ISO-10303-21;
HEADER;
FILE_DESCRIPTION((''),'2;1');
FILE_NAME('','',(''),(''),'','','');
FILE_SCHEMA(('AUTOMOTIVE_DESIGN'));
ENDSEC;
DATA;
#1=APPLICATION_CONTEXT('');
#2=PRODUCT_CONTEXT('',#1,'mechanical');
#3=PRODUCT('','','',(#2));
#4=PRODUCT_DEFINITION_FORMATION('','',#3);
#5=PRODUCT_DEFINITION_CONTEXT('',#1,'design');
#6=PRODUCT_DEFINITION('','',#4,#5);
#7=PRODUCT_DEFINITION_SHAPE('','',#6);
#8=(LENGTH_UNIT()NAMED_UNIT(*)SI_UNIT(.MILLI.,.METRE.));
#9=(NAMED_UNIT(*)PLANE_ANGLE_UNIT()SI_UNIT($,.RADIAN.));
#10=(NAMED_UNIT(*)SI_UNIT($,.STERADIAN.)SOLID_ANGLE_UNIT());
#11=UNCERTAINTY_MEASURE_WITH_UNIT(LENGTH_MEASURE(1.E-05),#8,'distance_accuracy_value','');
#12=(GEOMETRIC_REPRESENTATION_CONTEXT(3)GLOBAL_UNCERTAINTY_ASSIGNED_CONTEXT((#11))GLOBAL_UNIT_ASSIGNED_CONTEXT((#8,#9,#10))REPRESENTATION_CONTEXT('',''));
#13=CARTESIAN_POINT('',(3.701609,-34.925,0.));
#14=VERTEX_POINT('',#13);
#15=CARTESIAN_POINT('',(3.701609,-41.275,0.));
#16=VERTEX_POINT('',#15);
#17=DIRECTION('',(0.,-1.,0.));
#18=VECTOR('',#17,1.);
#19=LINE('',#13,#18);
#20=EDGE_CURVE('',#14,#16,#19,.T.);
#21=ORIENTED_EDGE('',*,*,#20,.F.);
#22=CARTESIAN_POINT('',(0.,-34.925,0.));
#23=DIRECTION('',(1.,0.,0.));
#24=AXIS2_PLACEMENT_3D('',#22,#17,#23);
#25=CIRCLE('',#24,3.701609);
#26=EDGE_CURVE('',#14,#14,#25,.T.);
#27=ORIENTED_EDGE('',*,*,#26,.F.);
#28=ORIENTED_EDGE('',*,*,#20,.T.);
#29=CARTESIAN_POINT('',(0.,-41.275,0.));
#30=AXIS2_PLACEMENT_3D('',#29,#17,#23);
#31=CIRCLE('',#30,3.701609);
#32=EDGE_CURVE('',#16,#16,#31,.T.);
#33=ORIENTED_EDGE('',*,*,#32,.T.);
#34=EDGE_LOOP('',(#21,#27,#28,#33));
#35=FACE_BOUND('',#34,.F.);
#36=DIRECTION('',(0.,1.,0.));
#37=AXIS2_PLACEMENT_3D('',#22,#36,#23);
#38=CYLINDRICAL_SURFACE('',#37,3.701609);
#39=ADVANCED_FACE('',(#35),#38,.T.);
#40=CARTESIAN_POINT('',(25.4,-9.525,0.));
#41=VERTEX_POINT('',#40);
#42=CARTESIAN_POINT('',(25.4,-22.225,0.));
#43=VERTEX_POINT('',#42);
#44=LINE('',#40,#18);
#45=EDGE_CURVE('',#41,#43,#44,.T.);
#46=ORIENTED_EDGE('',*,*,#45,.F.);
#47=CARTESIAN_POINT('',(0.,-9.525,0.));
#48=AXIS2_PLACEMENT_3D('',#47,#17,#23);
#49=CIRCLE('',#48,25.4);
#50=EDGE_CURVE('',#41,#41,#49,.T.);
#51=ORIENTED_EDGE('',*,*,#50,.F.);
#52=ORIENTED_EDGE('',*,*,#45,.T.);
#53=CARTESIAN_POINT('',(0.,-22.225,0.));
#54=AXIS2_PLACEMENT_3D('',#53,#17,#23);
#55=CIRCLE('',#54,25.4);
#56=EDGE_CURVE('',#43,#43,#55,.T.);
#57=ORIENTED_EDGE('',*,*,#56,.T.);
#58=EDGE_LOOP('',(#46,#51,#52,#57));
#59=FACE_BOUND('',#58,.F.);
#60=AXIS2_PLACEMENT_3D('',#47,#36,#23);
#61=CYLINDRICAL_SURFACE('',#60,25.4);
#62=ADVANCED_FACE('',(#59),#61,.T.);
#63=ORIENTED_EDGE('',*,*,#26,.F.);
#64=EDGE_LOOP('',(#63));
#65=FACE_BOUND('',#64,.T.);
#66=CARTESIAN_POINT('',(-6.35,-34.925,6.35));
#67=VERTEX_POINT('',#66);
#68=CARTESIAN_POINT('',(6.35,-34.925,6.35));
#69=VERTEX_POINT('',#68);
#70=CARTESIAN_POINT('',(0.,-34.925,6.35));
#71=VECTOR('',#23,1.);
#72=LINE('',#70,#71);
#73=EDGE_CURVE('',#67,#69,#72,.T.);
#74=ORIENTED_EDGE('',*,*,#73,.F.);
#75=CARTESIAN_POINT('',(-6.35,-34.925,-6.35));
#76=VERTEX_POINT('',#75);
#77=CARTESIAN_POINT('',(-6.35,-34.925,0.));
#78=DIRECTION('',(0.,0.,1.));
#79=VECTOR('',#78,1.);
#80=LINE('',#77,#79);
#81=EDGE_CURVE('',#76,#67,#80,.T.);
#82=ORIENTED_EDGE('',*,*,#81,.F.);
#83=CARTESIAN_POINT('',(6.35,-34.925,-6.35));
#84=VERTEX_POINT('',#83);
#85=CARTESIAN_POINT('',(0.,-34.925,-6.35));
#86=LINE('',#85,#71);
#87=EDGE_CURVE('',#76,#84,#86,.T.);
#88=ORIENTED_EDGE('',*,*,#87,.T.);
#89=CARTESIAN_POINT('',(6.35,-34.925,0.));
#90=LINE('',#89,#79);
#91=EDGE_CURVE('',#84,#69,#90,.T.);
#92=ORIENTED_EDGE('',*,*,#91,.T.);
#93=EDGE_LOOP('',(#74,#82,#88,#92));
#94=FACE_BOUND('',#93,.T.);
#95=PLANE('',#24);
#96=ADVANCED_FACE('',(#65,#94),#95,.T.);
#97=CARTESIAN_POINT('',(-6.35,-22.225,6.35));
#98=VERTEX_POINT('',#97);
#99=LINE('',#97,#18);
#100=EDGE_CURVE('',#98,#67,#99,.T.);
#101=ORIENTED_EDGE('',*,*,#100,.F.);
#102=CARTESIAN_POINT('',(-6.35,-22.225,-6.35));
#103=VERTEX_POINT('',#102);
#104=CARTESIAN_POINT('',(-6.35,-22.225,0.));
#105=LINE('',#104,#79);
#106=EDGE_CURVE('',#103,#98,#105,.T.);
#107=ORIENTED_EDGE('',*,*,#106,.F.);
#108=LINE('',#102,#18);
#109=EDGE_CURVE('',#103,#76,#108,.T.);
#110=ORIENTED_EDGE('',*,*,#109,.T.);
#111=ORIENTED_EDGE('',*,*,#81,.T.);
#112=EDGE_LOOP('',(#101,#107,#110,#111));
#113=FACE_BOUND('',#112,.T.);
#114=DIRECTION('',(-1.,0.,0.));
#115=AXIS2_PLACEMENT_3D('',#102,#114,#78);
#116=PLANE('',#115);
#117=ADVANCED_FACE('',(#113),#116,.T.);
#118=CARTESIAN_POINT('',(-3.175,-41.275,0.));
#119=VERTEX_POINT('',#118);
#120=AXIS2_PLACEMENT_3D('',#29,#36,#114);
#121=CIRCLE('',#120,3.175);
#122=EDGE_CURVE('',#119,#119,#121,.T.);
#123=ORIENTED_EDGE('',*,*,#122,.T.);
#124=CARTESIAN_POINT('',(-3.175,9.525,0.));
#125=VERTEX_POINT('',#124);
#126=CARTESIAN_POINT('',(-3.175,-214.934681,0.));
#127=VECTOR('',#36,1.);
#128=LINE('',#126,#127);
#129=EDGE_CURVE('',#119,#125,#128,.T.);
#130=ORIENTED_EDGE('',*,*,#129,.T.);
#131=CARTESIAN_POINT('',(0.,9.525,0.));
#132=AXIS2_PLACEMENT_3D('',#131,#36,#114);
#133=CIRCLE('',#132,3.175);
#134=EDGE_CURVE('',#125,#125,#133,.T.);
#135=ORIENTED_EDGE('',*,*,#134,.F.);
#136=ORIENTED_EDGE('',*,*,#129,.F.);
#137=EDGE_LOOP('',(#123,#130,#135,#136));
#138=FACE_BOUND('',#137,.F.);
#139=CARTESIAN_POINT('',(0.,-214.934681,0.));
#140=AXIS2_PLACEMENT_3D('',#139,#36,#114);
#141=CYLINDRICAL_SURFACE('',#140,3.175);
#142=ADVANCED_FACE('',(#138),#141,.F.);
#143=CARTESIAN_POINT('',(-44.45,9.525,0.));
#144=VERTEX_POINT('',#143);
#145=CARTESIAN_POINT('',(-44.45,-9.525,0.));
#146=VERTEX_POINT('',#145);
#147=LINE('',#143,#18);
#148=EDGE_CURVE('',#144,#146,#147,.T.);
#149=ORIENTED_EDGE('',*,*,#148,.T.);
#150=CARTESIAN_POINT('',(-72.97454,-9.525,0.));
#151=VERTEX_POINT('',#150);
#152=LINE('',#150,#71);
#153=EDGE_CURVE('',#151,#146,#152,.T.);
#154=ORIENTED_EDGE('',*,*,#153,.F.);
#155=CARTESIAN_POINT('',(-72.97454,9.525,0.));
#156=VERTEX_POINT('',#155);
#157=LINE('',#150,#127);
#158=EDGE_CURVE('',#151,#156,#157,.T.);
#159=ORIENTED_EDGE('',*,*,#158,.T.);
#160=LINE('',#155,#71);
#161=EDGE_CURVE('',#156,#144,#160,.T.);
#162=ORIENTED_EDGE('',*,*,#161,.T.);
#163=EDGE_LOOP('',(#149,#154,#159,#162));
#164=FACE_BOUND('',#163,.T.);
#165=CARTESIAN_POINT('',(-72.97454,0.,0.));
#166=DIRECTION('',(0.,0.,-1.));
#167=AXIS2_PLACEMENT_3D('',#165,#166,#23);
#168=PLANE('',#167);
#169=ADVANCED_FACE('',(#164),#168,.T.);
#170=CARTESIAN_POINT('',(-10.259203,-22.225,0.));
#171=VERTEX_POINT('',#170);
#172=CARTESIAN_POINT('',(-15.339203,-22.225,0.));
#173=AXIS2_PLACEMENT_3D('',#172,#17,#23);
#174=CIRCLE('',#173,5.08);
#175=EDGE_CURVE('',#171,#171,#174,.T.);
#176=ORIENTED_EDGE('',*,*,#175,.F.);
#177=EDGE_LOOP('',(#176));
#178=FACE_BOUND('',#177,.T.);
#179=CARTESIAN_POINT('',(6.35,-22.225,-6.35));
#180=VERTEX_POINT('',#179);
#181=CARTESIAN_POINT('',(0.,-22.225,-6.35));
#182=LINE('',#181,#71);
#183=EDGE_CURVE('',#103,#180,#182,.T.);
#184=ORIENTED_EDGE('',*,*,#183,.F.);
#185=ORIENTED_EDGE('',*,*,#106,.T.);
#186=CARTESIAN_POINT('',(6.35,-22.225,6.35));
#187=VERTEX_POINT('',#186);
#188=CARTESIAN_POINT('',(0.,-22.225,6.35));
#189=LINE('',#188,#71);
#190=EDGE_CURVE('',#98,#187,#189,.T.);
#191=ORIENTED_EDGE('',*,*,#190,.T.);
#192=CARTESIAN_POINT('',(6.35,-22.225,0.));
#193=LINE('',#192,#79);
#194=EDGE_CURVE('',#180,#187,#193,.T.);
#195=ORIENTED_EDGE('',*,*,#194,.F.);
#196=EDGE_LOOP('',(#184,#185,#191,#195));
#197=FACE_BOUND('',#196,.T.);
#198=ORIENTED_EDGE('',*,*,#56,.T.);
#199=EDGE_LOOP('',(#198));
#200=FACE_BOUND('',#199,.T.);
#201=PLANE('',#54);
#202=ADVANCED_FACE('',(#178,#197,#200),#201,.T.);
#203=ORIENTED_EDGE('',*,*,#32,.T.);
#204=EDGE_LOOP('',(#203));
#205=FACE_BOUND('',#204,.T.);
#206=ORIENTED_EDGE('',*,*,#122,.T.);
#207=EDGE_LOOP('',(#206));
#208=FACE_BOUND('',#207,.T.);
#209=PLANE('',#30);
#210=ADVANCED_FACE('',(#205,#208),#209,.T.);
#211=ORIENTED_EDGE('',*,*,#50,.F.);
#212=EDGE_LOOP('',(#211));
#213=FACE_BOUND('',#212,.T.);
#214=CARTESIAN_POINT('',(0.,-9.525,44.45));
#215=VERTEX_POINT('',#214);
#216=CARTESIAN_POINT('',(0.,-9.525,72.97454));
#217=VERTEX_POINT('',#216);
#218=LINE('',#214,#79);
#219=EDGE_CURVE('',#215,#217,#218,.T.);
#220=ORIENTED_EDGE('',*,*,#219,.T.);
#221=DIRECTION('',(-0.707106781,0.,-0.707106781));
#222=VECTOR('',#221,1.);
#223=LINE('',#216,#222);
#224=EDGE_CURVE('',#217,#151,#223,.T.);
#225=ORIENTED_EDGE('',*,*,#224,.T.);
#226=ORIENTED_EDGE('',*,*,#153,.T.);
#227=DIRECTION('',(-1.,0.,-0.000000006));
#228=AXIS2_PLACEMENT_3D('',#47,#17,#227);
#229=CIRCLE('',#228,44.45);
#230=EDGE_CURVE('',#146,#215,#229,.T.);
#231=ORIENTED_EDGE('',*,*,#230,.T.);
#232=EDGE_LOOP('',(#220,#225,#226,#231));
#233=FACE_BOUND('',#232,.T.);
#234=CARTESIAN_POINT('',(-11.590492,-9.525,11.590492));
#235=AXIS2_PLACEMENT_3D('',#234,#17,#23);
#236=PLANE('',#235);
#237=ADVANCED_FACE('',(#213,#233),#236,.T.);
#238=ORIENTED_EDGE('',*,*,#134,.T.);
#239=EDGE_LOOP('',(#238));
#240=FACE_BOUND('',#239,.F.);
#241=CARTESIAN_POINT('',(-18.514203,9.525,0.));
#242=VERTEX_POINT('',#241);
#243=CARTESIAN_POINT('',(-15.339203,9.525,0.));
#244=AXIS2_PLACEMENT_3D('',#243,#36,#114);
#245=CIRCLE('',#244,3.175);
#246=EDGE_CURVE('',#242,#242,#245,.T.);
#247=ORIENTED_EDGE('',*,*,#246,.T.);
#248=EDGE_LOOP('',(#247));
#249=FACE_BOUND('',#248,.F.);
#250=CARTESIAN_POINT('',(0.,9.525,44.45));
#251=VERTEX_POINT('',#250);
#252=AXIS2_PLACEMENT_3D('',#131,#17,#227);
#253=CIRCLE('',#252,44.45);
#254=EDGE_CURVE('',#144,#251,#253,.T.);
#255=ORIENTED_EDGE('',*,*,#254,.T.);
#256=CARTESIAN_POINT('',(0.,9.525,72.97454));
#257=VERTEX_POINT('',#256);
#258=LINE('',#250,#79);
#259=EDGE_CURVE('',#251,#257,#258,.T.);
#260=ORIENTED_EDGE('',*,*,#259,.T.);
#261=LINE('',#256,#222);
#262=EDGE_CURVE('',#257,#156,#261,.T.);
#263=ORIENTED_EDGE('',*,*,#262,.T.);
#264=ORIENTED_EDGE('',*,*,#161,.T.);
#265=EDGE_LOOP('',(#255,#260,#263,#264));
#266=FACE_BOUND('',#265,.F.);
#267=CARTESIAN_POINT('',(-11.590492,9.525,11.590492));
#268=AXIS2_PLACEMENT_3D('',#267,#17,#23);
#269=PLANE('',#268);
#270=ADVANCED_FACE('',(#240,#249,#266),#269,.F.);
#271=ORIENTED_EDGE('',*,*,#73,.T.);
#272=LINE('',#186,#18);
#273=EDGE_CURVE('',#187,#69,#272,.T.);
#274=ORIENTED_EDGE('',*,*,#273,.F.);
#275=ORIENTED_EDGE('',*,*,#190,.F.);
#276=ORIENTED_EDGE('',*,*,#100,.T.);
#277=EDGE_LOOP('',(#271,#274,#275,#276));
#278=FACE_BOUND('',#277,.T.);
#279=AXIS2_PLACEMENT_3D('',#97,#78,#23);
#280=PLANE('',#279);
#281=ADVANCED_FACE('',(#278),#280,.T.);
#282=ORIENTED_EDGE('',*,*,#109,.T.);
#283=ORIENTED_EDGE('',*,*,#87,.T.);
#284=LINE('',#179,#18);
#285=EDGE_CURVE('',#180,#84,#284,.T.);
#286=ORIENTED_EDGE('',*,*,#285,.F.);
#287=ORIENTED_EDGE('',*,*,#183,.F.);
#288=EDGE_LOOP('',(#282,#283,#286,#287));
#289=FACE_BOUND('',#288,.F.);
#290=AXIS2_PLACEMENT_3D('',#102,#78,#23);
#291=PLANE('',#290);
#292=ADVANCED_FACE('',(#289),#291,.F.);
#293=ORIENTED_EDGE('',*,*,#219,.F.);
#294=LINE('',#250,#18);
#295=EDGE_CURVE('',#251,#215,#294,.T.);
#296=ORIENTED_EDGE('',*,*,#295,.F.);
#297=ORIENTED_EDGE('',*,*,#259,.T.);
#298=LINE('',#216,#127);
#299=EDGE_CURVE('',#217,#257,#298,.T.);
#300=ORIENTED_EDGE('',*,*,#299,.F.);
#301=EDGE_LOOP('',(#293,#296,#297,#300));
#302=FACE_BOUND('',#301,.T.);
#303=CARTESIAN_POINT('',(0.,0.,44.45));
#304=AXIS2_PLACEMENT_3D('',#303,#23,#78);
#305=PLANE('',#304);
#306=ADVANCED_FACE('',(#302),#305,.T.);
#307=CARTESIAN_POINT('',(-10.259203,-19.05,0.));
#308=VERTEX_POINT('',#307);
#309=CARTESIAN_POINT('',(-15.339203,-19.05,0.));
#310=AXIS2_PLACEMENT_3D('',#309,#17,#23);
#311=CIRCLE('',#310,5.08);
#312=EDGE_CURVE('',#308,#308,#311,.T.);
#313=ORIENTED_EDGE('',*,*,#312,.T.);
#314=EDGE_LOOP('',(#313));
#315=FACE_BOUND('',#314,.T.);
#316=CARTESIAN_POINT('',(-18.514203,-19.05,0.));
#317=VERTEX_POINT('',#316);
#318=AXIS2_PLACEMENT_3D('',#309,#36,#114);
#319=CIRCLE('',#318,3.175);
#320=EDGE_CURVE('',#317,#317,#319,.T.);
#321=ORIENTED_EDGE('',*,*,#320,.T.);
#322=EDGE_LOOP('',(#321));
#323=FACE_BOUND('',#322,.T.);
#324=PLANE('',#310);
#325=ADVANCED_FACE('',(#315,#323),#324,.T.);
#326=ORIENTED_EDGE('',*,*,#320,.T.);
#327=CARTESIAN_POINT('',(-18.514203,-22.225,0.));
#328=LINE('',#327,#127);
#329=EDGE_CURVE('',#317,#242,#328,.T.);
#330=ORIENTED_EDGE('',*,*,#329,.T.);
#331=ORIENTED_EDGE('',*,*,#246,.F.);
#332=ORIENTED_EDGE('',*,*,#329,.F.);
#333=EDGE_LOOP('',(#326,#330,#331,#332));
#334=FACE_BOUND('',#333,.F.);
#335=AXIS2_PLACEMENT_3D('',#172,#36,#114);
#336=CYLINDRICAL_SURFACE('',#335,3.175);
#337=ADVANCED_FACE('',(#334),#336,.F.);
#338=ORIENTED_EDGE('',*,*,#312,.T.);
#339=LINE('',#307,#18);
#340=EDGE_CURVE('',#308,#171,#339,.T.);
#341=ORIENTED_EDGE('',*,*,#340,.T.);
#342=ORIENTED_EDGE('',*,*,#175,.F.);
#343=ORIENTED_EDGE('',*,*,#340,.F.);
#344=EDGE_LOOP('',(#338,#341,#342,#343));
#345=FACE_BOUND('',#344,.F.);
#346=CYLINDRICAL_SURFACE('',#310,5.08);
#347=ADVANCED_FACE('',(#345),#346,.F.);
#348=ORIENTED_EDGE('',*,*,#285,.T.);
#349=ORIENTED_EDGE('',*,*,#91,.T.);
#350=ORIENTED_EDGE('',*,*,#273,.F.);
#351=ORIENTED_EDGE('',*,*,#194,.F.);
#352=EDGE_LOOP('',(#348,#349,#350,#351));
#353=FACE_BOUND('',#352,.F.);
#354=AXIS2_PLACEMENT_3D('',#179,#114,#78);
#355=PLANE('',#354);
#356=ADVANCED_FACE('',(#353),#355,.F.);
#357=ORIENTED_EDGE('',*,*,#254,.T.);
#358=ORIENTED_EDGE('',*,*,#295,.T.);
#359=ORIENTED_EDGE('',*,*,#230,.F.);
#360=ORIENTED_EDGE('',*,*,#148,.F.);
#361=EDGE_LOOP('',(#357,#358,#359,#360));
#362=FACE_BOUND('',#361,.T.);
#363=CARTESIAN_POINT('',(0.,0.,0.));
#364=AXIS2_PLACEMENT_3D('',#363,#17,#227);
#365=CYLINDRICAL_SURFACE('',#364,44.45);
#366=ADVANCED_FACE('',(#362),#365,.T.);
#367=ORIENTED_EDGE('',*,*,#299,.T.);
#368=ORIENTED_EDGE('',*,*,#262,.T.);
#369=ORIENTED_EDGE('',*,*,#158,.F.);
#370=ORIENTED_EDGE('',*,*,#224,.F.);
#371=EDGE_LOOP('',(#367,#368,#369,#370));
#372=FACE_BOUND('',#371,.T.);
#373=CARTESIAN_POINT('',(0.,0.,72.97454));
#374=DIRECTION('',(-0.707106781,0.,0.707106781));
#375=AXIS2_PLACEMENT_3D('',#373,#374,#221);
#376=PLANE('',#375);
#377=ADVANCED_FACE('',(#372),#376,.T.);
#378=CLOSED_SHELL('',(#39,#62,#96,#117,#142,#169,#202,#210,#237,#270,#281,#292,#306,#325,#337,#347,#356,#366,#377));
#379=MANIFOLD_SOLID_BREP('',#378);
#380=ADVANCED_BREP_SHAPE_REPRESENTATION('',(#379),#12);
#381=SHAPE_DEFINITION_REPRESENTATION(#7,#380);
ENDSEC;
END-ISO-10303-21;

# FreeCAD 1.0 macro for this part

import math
import FreeCAD as App
import Part
import Sketcher

V = App.Vector
Q = App.Units.Quantity


def add_polygon(sketch, points):
    """Adds a closed chain of lines whose ends are joined by coincident constraints."""
    first, n = sketch.GeometryCount, len(points)
    for a, b in zip(points, points[1:] + points[:1]):
        sketch.addGeometry(Part.LineSegment(App.Vector(*a, 0), App.Vector(*b, 0)), False)
    for i in range(n):
        sketch.addConstraint(Sketcher.Constraint("Coincident", first + i, 2, first + (i + 1) % n, 1))

doc = App.newDocument("Part")
params = doc.addObject("Spreadsheet::Sheet", "Params")
for row, (alias, value) in enumerate([
    ("sketch1_radius", "1.75 in"),
    ("pad1_length", "0.75 in"),
    ("sketch2_diameter", "2 in"),
    ("pad2_length", "0.5 in"),
    ("sketch3_width", "0.5 in"),
    ("pad3_length", "0.5 in"),
    ("pad4_length", "0.25 in"),
    ("sketch5_diameter", "0.25 in"),
    ("hole_diameter", "0.25 in"),
    ("sketch6_diameter", "0.25 in"),
    ("hole2_diameter", "0.25 in"),
    ("hole2_cbore_diameter", "0.4 in"),
    ("hole2_cbore_depth", "0.125 in"),
], start=1):
    params.set(f"A{row}", alias)
    params.set(f"B{row}", "=" + value)
    params.setAlias(f"B{row}", alias)

body = doc.addObject("PartDesign::Body", "Body")

# Sketch on XZ plane
sketch1 = doc.addObject("Sketcher::SketchObject", "Sketch")
body.addObject(sketch1)
sketch1.AttachmentSupport = (doc.XZ_Plane, [""])
sketch1.MapMode = "FlatFace"
sketch1.addGeometry(Part.LineSegment(V(-72.97454, 0, 0), V(-44.45, 0, 0)), False)
sketch1.addGeometry(Part.ArcOfCircle(Part.Circle(V(0, 0, 0), V(0, 0, 1), 44.45), math.radians(-180), math.radians(90)), False)
sketch1.addGeometry(Part.LineSegment(V(0, 44.45, 0), V(0, 72.97454, 0)), False)
sketch1.addGeometry(Part.LineSegment(V(0, 72.97454, 0), V(-72.97454, 0, 0)), False)
sketch1.addConstraint(Sketcher.Constraint("Coincident", 0, 2, 1, 1))
sketch1.addConstraint(Sketcher.Constraint("Coincident", 1, 2, 2, 1))
sketch1.addConstraint(Sketcher.Constraint("Coincident", 2, 2, 3, 1))
sketch1.addConstraint(Sketcher.Constraint("Coincident", 3, 2, 0, 1))
sketch1.addConstraint(Sketcher.Constraint("Horizontal", 0))
sketch1.addConstraint(Sketcher.Constraint("Vertical", 2))
sketch1.addConstraint(Sketcher.Constraint("Coincident", 1, 3, -1, 1))
sketch1.addConstraint(Sketcher.Constraint("PointOnObject", 0, 2, -1))
sketch1.addConstraint(Sketcher.Constraint("PointOnObject", 1, 2, -2))
sketch1.addConstraint(Sketcher.Constraint("Equal", 0, 2))
sketch1.addConstraint(Sketcher.Constraint("Radius", 1, Q("1.75 in")))
sketch1.addConstraint(Sketcher.Constraint("DistanceX", 0, 1, 0, 2, 28.52454))
sketch1.setExpression("Constraints[10]", "Params.sketch1_radius")
pad1 = doc.addObject("PartDesign::Pad", "Pad")
body.addObject(pad1)
pad1.Profile = sketch1
pad1.setExpression("Length", "Params.pad1_length")
pad1.Midplane = True

# Sketch on XZ plane
sketch2 = doc.addObject("Sketcher::SketchObject", "Sketch001")
body.addObject(sketch2)
sketch2.AttachmentSupport = (doc.XZ_Plane, [""])
sketch2.MapMode = "FlatFace"
sketch2.AttachmentOffset = App.Placement(V(0, 0, 0.375 * 25.4), App.Rotation())
sketch2.addGeometry(Part.Circle(V(0, 0, 0), V(0, 0, 1), 25.4), False)
sketch2.addConstraint(Sketcher.Constraint("Coincident", 0, 3, -1, 1))
sketch2.addConstraint(Sketcher.Constraint("Diameter", 0, Q("2 in")))
sketch2.setExpression("Constraints[1]", "Params.sketch2_diameter")
pad2 = doc.addObject("PartDesign::Pad", "Pad001")
body.addObject(pad2)
pad2.Profile = sketch2
pad2.setExpression("Length", "Params.pad2_length")

# Sketch on XZ plane
sketch3 = doc.addObject("Sketcher::SketchObject", "Sketch002")
body.addObject(sketch3)
sketch3.AttachmentSupport = (doc.XZ_Plane, [""])
sketch3.MapMode = "FlatFace"
sketch3.AttachmentOffset = App.Placement(V(0, 0, 0.875 * 25.4), App.Rotation())
add_polygon(sketch3, [(-6.35, 6.35), (-6.35, -6.35), (6.35, -6.35), (6.35, 6.35)])  # lines 0-3
sketch3.addConstraint(Sketcher.Constraint("Vertical", 0))
sketch3.addConstraint(Sketcher.Constraint("Horizontal", 1))
sketch3.addConstraint(Sketcher.Constraint("Vertical", 2))
sketch3.addConstraint(Sketcher.Constraint("Horizontal", 3))
sketch3.addConstraint(Sketcher.Constraint("Symmetric", 0, 2, 2, 2, -1, 1))
sketch3.addConstraint(Sketcher.Constraint("Equal", 3, 0))
sketch3.addConstraint(Sketcher.Constraint("DistanceX", 1, 1, 1, 2, Q("0.5 in")))
sketch3.setExpression("Constraints[10]", "Params.sketch3_width")
pad3 = doc.addObject("PartDesign::Pad", "Pad002")
body.addObject(pad3)
pad3.Profile = sketch3
pad3.setExpression("Length", "Params.pad3_length")

# Sketch on XZ plane
sketch4 = doc.addObject("Sketcher::SketchObject", "Sketch003")
body.addObject(sketch4)
sketch4.AttachmentSupport = (doc.XZ_Plane, [""])
sketch4.MapMode = "FlatFace"
sketch4.AttachmentOffset = App.Placement(V(0, 0, 1.375 * 25.4), App.Rotation())
sketch4.addGeometry(Part.Circle(V(0, 0, 0), V(0, 0, 1), 3.701609), False)
sketch4.addConstraint(Sketcher.Constraint("Coincident", 0, 3, -1, 1))
sketch4.addConstraint(Sketcher.Constraint("Diameter", 0, 7.403218))
pad4 = doc.addObject("PartDesign::Pad", "Pad003")
body.addObject(pad4)
pad4.Profile = sketch4
pad4.setExpression("Length", "Params.pad4_length")

# Sketch on XZ plane
sketch5 = doc.addObject("Sketcher::SketchObject", "Sketch004")
body.addObject(sketch5)
sketch5.AttachmentSupport = (doc.XZ_Plane, [""])
sketch5.MapMode = "FlatFace"
sketch5.AttachmentOffset = App.Placement(V(0, 0, 1.625 * 25.4), App.Rotation())
sketch5.addGeometry(Part.Circle(V(0, 0, 0), V(0, 0, 1), 3.175), False)
sketch5.addConstraint(Sketcher.Constraint("Coincident", 0, 3, -1, 1))
sketch5.addConstraint(Sketcher.Constraint("Diameter", 0, Q("0.25 in")))
sketch5.setExpression("Constraints[1]", "Params.sketch5_diameter")
doc.recompute()
hole = doc.addObject("PartDesign::Hole", "Hole")
body.addObject(hole)
hole.Profile = sketch5
hole.ThreadType = "None"
hole.setExpression("Diameter", "Params.hole_diameter")
hole.DepthType = "ThroughAll"

# Sketch on XZ plane
sketch6 = doc.addObject("Sketcher::SketchObject", "Sketch005")
body.addObject(sketch6)
sketch6.AttachmentSupport = (doc.XZ_Plane, [""])
sketch6.MapMode = "FlatFace"
sketch6.AttachmentOffset = App.Placement(V(0, 0, 0.875 * 25.4), App.Rotation())
sketch6.addGeometry(Part.Circle(V(-15.339203, 0, 0), V(0, 0, 1), 3.175), False)
sketch6.addConstraint(Sketcher.Constraint("PointOnObject", 0, 3, -1))
sketch6.addConstraint(Sketcher.Constraint("Diameter", 0, Q("0.25 in")))
sketch6.addConstraint(Sketcher.Constraint("DistanceX", 0, 3, -1, 1, 15.339203))
sketch6.setExpression("Constraints[1]", "Params.sketch6_diameter")
doc.recompute()
hole2 = doc.addObject("PartDesign::Hole", "Hole001")
body.addObject(hole2)
hole2.Profile = sketch6
hole2.ThreadType = "None"
hole2.setExpression("Diameter", "Params.hole2_diameter")
hole2.DepthType = "ThroughAll"
hole2.HoleCutType = "Counterbore"
hole2.setExpression("HoleCutDiameter", "Params.hole2_cbore_diameter")
hole2.setExpression("HoleCutDepth", "Params.hole2_cbore_depth")

doc.recompute()
